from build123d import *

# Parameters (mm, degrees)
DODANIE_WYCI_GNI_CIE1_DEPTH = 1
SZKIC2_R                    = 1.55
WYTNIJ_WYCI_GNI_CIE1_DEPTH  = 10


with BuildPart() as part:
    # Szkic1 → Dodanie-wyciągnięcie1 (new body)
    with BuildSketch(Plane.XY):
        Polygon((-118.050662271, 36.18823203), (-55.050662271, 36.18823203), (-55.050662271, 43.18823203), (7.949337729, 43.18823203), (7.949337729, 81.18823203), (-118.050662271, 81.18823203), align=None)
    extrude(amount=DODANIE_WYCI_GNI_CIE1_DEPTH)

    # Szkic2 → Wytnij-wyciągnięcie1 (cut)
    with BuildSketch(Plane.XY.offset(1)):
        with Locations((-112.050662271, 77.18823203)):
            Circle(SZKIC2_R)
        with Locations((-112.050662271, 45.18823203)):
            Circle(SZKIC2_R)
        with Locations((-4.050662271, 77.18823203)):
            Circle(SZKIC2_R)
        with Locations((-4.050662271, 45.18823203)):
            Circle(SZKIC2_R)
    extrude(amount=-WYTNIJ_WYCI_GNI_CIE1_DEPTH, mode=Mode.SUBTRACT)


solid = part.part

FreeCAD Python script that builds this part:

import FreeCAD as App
import Part
import Sketcher
Q = App.Units.Quantity

doc = App.newDocument("Part")
body = doc.addObject("PartDesign::Body", "Body")

sketch1 = body.newObject("Sketcher::SketchObject", "Sketch")
sketch1.AttachmentSupport = (doc.getObject("XY_Plane"), [""])
sketch1.MapMode = "FlatFace"
sketch1.addGeometry(Part.LineSegment(App.Vector(-118, 36, 0), App.Vector(-55, 36, 0)), False)
sketch1.addGeometry(Part.LineSegment(App.Vector(-55, 36, 0), App.Vector(-55, 43, 0)), False)
sketch1.addGeometry(Part.LineSegment(App.Vector(-55, 43, 0), App.Vector(8, 43, 0)), False)
sketch1.addGeometry(Part.LineSegment(App.Vector(8, 43, 0), App.Vector(8, 81, 0)), False)
sketch1.addGeometry(Part.LineSegment(App.Vector(8, 81, 0), App.Vector(-118, 81, 0)), False)
sketch1.addGeometry(Part.LineSegment(App.Vector(-118, 81, 0), App.Vector(-118, 36, 0)), False)
sketch1.addConstraint(Sketcher.Constraint("Coincident", 0, 2, 1, 1))
sketch1.addConstraint(Sketcher.Constraint("Coincident", 1, 2, 2, 1))
sketch1.addConstraint(Sketcher.Constraint("Coincident", 2, 2, 3, 1))
sketch1.addConstraint(Sketcher.Constraint("Coincident", 3, 2, 4, 1))
sketch1.addConstraint(Sketcher.Constraint("Coincident", 4, 2, 5, 1))
sketch1.addConstraint(Sketcher.Constraint("Coincident", 5, 2, 0, 1))
sketch1.addConstraint(Sketcher.Constraint("Horizontal", 0))
sketch1.addConstraint(Sketcher.Constraint("Vertical", 1))
sketch1.addConstraint(Sketcher.Constraint("Horizontal", 2))
sketch1.addConstraint(Sketcher.Constraint("Vertical", 3))
sketch1.addConstraint(Sketcher.Constraint("Horizontal", 4))
sketch1.addConstraint(Sketcher.Constraint("Vertical", 5))
sketch1.addConstraint(Sketcher.Constraint("Equal", 0, 2))
sketch1.addConstraint(Sketcher.Constraint("DistanceX", 0, 1, 0, 2, Q("63 mm")))
sketch1.addConstraint(Sketcher.Constraint("DistanceY", 1, 1, 1, 2, Q("7 mm")))
sketch1.addConstraint(Sketcher.Constraint("DistanceY", 3, 1, 3, 2, Q("38 mm")))
sketch1.addConstraint(Sketcher.Constraint("DistanceX", 0, 2, -1, 1, Q("55.050662 mm")))
sketch1.addConstraint(Sketcher.Constraint("DistanceY", -1, 1, 0, 2, Q("36.188232 mm")))
pad1 = body.newObject("PartDesign::Pad", "Pad")
pad1.Profile = sketch1
pad1.Length = 1

sketch2 = body.newObject("Sketcher::SketchObject", "Sketch001")
sketch2.AttachmentSupport = (doc.getObject("XY_Plane"), [""])
sketch2.MapMode = "FlatFace"
sketch2.AttachmentOffset = App.Placement(App.Vector(0, 0, 1), App.Rotation())
sketch2.addGeometry(Part.Circle(App.Vector(-112.1, 77.2, 0), App.Vector(0, 0, 1), 1.6), False)
sketch2.addGeometry(Part.Circle(App.Vector(-112.1, 45.2, 0), App.Vector(0, 0, 1), 1.6), False)
sketch2.addGeometry(Part.Circle(App.Vector(-4.1, 77.2, 0), App.Vector(0, 0, 1), 1.6), False)
sketch2.addGeometry(Part.Circle(App.Vector(-4.1, 45.2, 0), App.Vector(0, 0, 1), 1.6), False)
sketch2.addConstraint(Sketcher.Constraint("Equal", 0, 1))
sketch2.addConstraint(Sketcher.Constraint("Equal", 1, 2))
sketch2.addConstraint(Sketcher.Constraint("Equal", 2, 3))
sketch2.addConstraint(Sketcher.Constraint("Horizontal", 0, 3, 2, 3))
sketch2.addConstraint(Sketcher.Constraint("Horizontal", 1, 3, 3, 3))
sketch2.addConstraint(Sketcher.Constraint("Vertical", 0, 3, 1, 3))
sketch2.addConstraint(Sketcher.Constraint("Vertical", 2, 3, 3, 3))
sketch2.addConstraint(Sketcher.Constraint("Diameter", 0, Q("3.1 mm")))
sketch2.addConstraint(Sketcher.Constraint("DistanceY", 1, 3, 0, 3, Q("32 mm")))
sketch2.addConstraint(Sketcher.Constraint("DistanceX", 0, 3, 2, 3, Q("108 mm")))
sketch2.addConstraint(Sketcher.Constraint("DistanceX", 0, 3, -1, 1, Q("112.050662 mm")))
sketch2.addConstraint(Sketcher.Constraint("DistanceY", -1, 1, 0, 3, Q("77.188232 mm")))
pocket1 = body.newObject("PartDesign::Pocket", "Pocket")
pocket1.Profile = sketch2
pocket1.Length = 10

doc.recompute()
